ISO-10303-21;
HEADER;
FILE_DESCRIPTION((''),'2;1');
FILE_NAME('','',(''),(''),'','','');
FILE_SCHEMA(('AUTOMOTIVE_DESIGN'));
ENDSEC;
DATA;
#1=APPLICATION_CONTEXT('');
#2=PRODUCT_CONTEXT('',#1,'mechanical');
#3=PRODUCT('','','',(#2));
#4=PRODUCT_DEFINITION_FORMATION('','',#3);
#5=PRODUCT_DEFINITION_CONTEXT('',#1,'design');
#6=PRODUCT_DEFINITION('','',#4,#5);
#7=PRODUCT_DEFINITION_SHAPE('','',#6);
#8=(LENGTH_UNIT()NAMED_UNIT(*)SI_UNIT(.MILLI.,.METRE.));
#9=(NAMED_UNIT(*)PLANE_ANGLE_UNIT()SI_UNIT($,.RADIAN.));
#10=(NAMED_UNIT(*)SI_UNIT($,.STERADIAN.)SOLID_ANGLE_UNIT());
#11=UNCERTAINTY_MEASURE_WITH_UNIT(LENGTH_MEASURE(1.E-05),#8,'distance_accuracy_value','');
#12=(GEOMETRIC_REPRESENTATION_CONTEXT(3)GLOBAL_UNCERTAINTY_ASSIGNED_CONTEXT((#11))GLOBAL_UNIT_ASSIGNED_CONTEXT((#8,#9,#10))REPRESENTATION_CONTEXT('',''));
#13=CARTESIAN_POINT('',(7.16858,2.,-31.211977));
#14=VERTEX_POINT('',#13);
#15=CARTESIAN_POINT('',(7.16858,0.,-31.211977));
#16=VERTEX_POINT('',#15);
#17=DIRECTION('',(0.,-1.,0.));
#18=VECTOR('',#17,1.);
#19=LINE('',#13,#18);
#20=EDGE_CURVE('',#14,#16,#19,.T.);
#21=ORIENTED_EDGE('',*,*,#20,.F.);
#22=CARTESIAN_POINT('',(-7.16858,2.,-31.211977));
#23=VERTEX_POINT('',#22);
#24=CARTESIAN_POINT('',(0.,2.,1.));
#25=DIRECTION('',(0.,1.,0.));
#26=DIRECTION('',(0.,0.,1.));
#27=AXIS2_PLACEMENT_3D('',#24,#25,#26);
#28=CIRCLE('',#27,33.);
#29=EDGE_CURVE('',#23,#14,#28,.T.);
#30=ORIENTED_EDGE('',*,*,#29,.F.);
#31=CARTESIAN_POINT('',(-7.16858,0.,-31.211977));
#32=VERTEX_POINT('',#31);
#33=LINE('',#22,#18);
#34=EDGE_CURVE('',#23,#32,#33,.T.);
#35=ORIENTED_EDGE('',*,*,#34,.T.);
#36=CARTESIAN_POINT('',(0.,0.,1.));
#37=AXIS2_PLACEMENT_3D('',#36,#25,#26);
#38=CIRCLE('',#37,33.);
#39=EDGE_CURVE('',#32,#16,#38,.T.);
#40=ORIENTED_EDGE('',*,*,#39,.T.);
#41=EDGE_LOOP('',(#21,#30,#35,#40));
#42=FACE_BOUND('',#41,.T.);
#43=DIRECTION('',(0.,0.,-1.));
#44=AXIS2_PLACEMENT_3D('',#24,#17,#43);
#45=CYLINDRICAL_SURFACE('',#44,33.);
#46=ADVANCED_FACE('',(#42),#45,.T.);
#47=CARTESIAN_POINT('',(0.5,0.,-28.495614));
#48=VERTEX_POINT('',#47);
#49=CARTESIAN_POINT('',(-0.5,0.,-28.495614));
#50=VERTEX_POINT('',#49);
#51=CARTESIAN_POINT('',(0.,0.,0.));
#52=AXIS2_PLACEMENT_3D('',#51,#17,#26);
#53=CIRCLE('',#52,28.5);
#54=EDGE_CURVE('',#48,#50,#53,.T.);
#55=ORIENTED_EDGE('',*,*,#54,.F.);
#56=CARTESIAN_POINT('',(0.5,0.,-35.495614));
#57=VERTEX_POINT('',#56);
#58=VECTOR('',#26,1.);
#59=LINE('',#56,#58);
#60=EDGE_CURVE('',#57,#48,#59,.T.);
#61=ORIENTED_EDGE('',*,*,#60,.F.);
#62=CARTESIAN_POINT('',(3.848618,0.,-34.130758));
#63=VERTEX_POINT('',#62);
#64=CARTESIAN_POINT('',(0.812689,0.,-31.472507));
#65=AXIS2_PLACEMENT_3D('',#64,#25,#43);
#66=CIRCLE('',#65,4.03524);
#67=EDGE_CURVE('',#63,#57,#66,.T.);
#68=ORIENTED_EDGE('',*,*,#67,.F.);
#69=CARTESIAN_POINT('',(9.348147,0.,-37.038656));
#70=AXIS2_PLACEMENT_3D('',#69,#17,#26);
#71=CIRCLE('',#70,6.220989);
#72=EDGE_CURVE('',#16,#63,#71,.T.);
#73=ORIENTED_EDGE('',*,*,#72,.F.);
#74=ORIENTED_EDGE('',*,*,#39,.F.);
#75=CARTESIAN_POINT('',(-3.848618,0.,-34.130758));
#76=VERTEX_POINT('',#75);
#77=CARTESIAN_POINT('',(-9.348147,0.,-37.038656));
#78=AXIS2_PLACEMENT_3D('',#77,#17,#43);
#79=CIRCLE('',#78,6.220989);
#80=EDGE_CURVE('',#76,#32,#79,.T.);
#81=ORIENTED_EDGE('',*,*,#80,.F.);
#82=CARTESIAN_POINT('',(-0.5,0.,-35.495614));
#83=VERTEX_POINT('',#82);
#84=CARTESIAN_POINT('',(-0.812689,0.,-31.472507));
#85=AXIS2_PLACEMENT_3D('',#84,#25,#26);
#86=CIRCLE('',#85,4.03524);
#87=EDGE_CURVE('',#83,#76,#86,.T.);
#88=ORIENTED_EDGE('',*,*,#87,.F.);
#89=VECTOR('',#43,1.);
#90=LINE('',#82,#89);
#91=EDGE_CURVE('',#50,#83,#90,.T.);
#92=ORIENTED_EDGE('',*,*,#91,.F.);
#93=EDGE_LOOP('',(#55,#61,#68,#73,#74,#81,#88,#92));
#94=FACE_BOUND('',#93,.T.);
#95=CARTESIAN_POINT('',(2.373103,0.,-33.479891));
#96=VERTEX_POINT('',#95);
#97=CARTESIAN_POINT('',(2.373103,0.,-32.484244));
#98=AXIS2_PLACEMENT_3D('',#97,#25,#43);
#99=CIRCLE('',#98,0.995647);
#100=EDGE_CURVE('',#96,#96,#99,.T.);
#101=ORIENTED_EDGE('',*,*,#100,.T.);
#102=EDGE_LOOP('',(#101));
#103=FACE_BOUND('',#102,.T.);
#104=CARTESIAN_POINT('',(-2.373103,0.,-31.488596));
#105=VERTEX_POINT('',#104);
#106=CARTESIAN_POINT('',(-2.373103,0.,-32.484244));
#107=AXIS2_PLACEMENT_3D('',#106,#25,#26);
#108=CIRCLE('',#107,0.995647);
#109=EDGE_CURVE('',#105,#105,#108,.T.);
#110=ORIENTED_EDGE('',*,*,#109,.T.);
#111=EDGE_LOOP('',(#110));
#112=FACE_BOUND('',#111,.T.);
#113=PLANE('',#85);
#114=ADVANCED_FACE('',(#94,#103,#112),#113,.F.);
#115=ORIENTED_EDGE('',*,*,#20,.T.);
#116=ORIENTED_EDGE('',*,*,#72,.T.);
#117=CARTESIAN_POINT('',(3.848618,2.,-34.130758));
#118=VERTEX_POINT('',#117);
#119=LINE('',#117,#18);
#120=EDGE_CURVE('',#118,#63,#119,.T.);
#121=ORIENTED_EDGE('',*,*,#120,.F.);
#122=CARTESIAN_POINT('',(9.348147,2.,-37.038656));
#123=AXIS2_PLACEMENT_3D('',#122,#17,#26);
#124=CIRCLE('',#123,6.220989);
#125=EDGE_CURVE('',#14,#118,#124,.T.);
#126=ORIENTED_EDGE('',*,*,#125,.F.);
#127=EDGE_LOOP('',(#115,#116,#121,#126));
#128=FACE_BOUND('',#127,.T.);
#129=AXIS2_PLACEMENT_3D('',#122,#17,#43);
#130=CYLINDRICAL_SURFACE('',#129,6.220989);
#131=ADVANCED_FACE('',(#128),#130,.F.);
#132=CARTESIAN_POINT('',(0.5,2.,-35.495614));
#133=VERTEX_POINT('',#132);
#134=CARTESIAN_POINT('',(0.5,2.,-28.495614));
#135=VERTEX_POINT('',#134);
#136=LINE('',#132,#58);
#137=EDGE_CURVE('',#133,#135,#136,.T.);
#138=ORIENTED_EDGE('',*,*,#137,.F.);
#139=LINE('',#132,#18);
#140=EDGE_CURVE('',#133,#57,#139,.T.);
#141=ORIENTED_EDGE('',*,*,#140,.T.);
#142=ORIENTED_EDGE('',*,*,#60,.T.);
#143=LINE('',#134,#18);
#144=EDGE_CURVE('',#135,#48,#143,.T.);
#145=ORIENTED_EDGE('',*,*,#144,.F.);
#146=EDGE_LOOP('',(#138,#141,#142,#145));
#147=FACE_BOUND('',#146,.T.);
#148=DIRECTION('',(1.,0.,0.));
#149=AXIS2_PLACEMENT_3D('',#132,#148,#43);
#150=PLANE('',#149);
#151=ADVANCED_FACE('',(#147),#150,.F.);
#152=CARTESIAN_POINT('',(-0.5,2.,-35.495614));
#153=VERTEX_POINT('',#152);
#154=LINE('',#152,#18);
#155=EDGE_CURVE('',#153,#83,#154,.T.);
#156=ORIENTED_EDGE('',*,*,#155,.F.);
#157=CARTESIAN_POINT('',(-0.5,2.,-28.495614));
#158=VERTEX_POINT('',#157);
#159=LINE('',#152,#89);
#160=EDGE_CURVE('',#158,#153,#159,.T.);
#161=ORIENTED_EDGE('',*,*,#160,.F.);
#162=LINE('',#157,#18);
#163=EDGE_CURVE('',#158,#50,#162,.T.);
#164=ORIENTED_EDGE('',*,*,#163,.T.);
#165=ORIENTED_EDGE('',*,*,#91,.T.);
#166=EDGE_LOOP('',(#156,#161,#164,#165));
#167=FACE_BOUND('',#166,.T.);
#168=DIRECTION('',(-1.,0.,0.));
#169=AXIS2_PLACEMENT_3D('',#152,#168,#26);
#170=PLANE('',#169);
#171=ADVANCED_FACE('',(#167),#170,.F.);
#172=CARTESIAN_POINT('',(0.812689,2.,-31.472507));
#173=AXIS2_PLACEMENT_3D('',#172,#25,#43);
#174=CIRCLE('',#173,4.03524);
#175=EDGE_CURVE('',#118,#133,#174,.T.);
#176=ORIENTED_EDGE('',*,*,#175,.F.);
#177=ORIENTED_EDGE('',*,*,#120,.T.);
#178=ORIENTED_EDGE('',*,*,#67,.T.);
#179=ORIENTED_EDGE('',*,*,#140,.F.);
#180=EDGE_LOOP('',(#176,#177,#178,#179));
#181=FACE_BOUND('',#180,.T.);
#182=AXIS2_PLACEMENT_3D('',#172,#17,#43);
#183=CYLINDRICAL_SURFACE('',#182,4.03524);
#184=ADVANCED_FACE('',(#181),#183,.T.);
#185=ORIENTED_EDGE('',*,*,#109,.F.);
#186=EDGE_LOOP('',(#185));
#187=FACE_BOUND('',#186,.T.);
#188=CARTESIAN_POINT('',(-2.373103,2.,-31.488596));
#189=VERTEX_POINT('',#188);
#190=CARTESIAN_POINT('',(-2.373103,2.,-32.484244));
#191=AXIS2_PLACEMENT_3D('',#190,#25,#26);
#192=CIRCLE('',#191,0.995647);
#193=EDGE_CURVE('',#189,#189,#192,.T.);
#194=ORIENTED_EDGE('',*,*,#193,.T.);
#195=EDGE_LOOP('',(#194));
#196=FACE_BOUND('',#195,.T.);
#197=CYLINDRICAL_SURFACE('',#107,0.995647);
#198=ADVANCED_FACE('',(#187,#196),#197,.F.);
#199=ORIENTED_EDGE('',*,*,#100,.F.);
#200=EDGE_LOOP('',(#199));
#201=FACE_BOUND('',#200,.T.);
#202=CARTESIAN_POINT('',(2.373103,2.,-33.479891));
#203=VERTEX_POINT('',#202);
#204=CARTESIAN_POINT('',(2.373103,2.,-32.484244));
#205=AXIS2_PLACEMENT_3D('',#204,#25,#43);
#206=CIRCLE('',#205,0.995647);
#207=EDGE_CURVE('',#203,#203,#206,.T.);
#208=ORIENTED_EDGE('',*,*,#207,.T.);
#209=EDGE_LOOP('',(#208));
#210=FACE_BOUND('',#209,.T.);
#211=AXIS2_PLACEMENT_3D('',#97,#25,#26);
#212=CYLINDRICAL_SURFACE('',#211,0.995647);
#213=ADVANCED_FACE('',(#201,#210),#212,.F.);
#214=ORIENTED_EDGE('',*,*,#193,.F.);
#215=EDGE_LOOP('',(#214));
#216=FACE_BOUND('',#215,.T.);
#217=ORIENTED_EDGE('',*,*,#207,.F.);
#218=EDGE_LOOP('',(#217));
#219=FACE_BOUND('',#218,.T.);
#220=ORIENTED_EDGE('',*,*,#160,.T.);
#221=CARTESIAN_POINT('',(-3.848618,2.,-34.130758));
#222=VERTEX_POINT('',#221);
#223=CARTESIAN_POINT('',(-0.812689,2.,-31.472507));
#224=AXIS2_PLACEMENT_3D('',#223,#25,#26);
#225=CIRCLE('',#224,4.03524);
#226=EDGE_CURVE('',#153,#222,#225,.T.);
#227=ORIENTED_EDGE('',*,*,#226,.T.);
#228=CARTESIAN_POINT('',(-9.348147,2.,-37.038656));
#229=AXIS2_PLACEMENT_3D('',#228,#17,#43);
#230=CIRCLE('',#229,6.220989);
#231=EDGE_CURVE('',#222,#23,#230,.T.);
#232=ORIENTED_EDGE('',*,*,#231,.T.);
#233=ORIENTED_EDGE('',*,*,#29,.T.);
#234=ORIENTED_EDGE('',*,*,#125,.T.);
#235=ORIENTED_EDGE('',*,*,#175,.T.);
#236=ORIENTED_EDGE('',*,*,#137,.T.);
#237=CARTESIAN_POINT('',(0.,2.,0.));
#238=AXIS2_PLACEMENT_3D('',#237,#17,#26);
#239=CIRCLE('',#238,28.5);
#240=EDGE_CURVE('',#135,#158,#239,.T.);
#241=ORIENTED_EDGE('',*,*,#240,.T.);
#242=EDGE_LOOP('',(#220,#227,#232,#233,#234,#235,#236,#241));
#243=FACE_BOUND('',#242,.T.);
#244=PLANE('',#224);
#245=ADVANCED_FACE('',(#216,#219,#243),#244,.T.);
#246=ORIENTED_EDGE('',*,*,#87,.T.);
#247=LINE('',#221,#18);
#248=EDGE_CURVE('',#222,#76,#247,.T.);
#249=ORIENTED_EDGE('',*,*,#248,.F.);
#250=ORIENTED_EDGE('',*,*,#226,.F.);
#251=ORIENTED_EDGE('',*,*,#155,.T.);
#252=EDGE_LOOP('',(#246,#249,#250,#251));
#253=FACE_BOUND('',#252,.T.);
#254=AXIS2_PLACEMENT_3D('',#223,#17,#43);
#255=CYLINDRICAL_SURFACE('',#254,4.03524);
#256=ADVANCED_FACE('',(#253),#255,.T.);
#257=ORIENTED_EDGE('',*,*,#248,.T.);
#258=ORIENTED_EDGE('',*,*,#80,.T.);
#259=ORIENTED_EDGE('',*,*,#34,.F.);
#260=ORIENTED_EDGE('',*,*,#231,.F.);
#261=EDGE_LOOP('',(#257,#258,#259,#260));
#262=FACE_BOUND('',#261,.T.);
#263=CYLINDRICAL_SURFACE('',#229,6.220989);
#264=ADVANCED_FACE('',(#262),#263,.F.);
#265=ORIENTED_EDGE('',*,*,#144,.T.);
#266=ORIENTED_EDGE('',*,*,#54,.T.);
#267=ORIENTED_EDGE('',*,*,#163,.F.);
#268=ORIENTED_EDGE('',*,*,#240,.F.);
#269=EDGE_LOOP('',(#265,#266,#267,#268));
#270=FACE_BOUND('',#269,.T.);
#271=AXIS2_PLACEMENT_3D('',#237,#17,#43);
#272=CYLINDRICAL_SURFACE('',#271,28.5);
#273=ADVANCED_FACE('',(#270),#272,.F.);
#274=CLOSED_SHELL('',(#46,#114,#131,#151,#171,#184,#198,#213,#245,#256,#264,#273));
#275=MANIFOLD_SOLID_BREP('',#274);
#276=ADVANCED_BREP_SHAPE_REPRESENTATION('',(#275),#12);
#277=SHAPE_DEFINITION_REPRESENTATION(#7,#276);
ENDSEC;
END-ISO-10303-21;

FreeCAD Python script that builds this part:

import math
import FreeCAD as App
import Part
import Sketcher

V = App.Vector

doc = App.newDocument("Part")
body = doc.addObject("PartDesign::Body", "Body")

# Sketch on XZ plane
sketch1 = doc.addObject("Sketcher::SketchObject", "Sketch")
body.addObject(sketch1)
sketch1.AttachmentSupport = (doc.XZ_Plane, [""])
sketch1.MapMode = "FlatFace"
sketch1.addGeometry(Part.LineSegment(V(-0.5, -28.5, 0), V(-0.5, -35.5, 0)), False)
sketch1.addGeometry(Part.ArcOfCircle(Part.Circle(V(-0.8, -31.5, 0), V(0, 0, 1), 4), math.radians(-139), math.radians(-86)), False)
sketch1.addGeometry(Part.ArcOfCircle(Part.Circle(V(-9.3, -37, 0), V(0, 0, 1), 6.2), math.radians(28), math.radians(69)), False)
sketch1.addGeometry(Part.ArcOfCircle(Part.Circle(V(0, 1, 0), V(0, 0, 1), 33), math.radians(-77), math.radians(257)), False)
sketch1.addGeometry(Part.ArcOfCircle(Part.Circle(V(9.3, -37, 0), V(0, 0, 1), 6.2), math.radians(111), math.radians(152)), False)
sketch1.addGeometry(Part.ArcOfCircle(Part.Circle(V(0.8, -31.5, 0), V(0, 0, 1), 4), math.radians(-94), math.radians(-41)), False)
sketch1.addGeometry(Part.LineSegment(V(0.5, -35.5, 0), V(0.5, -28.5, 0)), False)
sketch1.addGeometry(Part.ArcOfCircle(Part.Circle(V(0, 0, 0), V(0, 0, 1), 28.5), math.radians(-89), math.radians(269)), False)
sketch1.addConstraint(Sketcher.Constraint("Coincident", 0, 2, 1, 2))
sketch1.addConstraint(Sketcher.Constraint("Coincident", 1, 1, 2, 1))
sketch1.addConstraint(Sketcher.Constraint("Coincident", 2, 2, 3, 2))
sketch1.addConstraint(Sketcher.Constraint("Coincident", 3, 1, 4, 1))
sketch1.addConstraint(Sketcher.Constraint("Coincident", 4, 2, 5, 2))
sketch1.addConstraint(Sketcher.Constraint("Coincident", 5, 1, 6, 1))
sketch1.addConstraint(Sketcher.Constraint("Coincident", 6, 2, 7, 1))
sketch1.addConstraint(Sketcher.Constraint("Coincident", 7, 2, 0, 1))
sketch1.addConstraint(Sketcher.Constraint("Vertical", 0))
sketch1.addConstraint(Sketcher.Constraint("Vertical", 6))
sketch1.addConstraint(Sketcher.Constraint("Coincident", 7, 3, -1, 1))
sketch1.addConstraint(Sketcher.Constraint("Equal", 2, 4))
sketch1.addConstraint(Sketcher.Constraint("Equal", 1, 5))
sketch1.addConstraint(Sketcher.Constraint("Symmetric", 2, 3, 4, 3, -2))
sketch1.addConstraint(Sketcher.Constraint("Symmetric", 1, 3, 5, 3, -2))
sketch1.addConstraint(Sketcher.Constraint("PointOnObject", 3, 3, -2))
sketch1.addConstraint(Sketcher.Constraint("Horizontal", 0, 2, 5, 1))
sketch1.addConstraint(Sketcher.Constraint("Radius", 3, 33.0))
sketch1.addConstraint(Sketcher.Constraint("Radius", 7, 28.5))
sketch1.addConstraint(Sketcher.Constraint("DistanceY", 0, 2, 0, 1, 7.0))
sketch1.addConstraint(Sketcher.Constraint("DistanceY", -1, 1, 3, 3, 1.0))
sketch1.addConstraint(Sketcher.Constraint("DistanceX", 0, 2, 5, 1, 1.0))
sketch1.addConstraint(Sketcher.Constraint("Radius", 1, 4.03524))
sketch1.addConstraint(Sketcher.Constraint("Radius", 2, 6.220989))
sketch1.addConstraint(Sketcher.Constraint("DistanceX", 1, 3, -1, 1, 0.812689))
sketch1.addConstraint(Sketcher.Constraint("DistanceX", 2, 2, -1, 1, 7.16858))
sketch1.addConstraint(Sketcher.Constraint("DistanceX", 2, 3, 1, 3, 8.535459))
pad1 = doc.addObject("PartDesign::Pad", "Pad")
body.addObject(pad1)
pad1.Profile = sketch1
pad1.Length = 2
pad1.Reversed = True

# Sketch on XZ plane
sketch2 = doc.addObject("Sketcher::SketchObject", "Sketch001")
body.addObject(sketch2)
sketch2.AttachmentSupport = (doc.XZ_Plane, [""])
sketch2.MapMode = "FlatFace"
sketch2.AttachmentOffset = App.Placement(V(0, 0, -2), App.Rotation())
sketch2.addGeometry(Part.Circle(V(-2.4, -32.5, 0), V(0, 0, 1), 1), False)
sketch2.addGeometry(Part.Circle(V(2.4, -32.5, 0), V(0, 0, 1), 1), False)
sketch2.addConstraint(Sketcher.Constraint("Equal", 0, 1))
sketch2.addConstraint(Sketcher.Constraint("Symmetric", 0, 3, 1, 3, -2))
sketch2.addConstraint(Sketcher.Constraint("Diameter", 0, 1.991295))
sketch2.addConstraint(Sketcher.Constraint("DistanceX", 0, 3, -1, 1, 2.373103))
sketch2.addConstraint(Sketcher.Constraint("DistanceY", 0, 3, -1, 1, 32.484244))
pocket1 = doc.addObject("PartDesign::Pocket", "Pocket")
body.addObject(pocket1)
pocket1.Profile = sketch2
pocket1.Length = 2
pocket1.Reversed = True

doc.recompute()
